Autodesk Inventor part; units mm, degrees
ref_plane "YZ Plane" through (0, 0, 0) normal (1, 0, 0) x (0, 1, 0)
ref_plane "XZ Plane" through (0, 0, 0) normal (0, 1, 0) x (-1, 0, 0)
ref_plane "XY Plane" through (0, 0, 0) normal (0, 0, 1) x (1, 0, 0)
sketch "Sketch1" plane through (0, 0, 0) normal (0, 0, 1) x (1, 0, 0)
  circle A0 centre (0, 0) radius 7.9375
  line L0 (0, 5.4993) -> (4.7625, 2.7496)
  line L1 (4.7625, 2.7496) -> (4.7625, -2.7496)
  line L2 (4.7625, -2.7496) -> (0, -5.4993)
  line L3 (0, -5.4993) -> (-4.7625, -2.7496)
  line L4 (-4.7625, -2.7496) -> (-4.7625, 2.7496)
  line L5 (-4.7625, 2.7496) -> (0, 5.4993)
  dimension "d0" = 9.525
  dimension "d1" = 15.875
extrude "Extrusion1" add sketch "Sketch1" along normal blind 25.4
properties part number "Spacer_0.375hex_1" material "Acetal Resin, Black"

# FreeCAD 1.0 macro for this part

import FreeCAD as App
import Part
import Sketcher
from FreeCAD import Vector
Q = App.Units.Quantity

doc = App.newDocument("Part")
body = doc.addObject("PartDesign::Body", "Body")

sketch1 = body.newObject("Sketcher::SketchObject", "Sketch")
sketch1.AttachmentSupport = (doc.getObject("XY_Plane"), [""])
sketch1.MapMode = "FlatFace"
sketch1.addGeometry(Part.Circle(Vector(0, 0, 0), Vector(0, 0, 1), 8), False)
sketch1.addGeometry(Part.LineSegment(Vector(-5, 3, 0), Vector(0, 5, 0)), False)
sketch1.addGeometry(Part.LineSegment(Vector(0, 5, 0), Vector(5, 3, 0)), False)
sketch1.addGeometry(Part.LineSegment(Vector(5, 3, 0), Vector(5, -3, 0)), False)
sketch1.addGeometry(Part.LineSegment(Vector(5, -3, 0), Vector(0, -5, 0)), False)
sketch1.addGeometry(Part.LineSegment(Vector(0, -5, 0), Vector(-5, -3, 0)), False)
sketch1.addGeometry(Part.LineSegment(Vector(-5, -3, 0), Vector(-5, 3, 0)), False)
sketch1.addConstraint(Sketcher.Constraint("Coincident", 1, 2, 2, 1))
sketch1.addConstraint(Sketcher.Constraint("Coincident", 2, 2, 3, 1))
sketch1.addConstraint(Sketcher.Constraint("Coincident", 3, 2, 4, 1))
sketch1.addConstraint(Sketcher.Constraint("Coincident", 4, 2, 5, 1))
sketch1.addConstraint(Sketcher.Constraint("Coincident", 5, 2, 6, 1))
sketch1.addConstraint(Sketcher.Constraint("Coincident", 6, 2, 1, 1))
sketch1.addConstraint(Sketcher.Constraint("Vertical", 3))
sketch1.addConstraint(Sketcher.Constraint("Vertical", 6))
sketch1.addConstraint(Sketcher.Constraint("Coincident", 0, 3, -1, 1))
sketch1.addConstraint(Sketcher.Constraint("Symmetric", 1, 2, 4, 2, -1, 1))
sketch1.addConstraint(Sketcher.Constraint("Symmetric", 2, 2, 5, 2, -1, 1))
sketch1.addConstraint(Sketcher.Constraint("PointOnObject", 1, 2, -2))
sketch1.addConstraint(Sketcher.Constraint("Parallel", 1, 4))
sketch1.addConstraint(Sketcher.Constraint("Horizontal", 3, 2, 5, 2))
sketch1.addConstraint(Sketcher.Constraint("Diameter", 0, Q("0.625 in")))
sketch1.addConstraint(Sketcher.Constraint("Angle", 1, Q("30.0006 deg")))
sketch1.addConstraint(Sketcher.Constraint("DistanceX", 5, 2, 3, 2, Q("0.375 in")))
sketch1.addConstraint(Sketcher.Constraint("DistanceY", 3, 2, 3, 1, Q("0.2165 in")))
pad1 = body.newObject("PartDesign::Pad", "Pad")
pad1.Profile = sketch1
pad1.Length = Q("1 in")

doc.recompute()
